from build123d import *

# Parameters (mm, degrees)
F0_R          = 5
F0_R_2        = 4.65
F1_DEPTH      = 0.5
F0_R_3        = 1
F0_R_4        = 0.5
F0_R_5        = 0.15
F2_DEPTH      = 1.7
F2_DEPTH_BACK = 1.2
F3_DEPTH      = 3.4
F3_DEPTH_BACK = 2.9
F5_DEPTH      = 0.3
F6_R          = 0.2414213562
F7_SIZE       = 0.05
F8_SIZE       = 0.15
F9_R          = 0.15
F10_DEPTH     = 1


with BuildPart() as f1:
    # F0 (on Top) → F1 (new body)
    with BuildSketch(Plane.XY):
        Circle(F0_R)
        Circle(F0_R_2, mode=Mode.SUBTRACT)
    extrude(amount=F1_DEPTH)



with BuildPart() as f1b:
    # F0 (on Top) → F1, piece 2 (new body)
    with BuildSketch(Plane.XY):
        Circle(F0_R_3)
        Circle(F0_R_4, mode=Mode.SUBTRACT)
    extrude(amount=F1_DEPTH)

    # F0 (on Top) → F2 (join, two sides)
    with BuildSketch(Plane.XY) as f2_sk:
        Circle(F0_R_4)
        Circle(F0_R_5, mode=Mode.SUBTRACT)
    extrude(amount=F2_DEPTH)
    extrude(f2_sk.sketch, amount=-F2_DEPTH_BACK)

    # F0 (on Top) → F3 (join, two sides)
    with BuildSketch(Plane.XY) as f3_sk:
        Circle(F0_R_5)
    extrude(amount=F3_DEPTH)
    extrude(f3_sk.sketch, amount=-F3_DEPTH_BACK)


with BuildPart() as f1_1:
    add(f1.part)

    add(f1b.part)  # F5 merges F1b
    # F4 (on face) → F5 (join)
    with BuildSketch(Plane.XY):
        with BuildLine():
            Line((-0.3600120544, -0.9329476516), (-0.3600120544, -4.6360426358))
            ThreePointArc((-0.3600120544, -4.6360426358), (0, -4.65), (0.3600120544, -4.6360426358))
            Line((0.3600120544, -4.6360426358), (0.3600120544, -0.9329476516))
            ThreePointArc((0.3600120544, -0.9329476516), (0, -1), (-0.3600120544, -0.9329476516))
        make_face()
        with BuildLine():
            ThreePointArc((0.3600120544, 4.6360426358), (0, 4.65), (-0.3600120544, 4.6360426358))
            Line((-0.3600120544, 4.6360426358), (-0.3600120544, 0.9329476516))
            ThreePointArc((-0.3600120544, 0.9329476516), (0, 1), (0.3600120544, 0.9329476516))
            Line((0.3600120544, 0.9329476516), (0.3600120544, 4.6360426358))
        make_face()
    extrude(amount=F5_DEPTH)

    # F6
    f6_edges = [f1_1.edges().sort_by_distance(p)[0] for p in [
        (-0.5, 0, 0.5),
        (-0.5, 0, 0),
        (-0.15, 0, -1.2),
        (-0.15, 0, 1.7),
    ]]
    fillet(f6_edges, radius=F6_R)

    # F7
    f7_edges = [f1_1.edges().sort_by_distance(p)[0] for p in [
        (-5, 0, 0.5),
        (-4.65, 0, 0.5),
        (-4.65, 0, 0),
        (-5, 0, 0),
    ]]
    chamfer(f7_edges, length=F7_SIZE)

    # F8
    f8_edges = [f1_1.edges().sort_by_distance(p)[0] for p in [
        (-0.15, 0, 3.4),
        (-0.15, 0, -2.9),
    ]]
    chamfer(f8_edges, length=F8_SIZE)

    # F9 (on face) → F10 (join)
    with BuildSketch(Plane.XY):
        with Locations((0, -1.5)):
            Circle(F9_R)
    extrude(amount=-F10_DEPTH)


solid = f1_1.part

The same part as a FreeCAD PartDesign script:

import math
import FreeCAD as App
import Part
import Sketcher


def edges_at(feature, points):
    """Names of the edges that pass closest to the given points."""
    edges = feature.Shape.Edges
    near = lambda p: min(range(len(edges)), key=lambda i: edges[i].distToShape(Part.Vertex(*p))[0])
    return sorted({f"Edge{near(p) + 1}" for p in points})

doc = App.newDocument("Part")
body = doc.addObject("PartDesign::Body", "Body")

sketch1 = doc.addObject("Sketcher::SketchObject", "Sketch")
body.addObject(sketch1)
sketch1.AttachmentSupport = (doc.XY_Plane, [""])
sketch1.MapMode = "FlatFace"
sketch1.addGeometry([
    Part.Circle(App.Vector(0, 0, 0), App.Vector(0, 0, 1), 5),
    Part.Circle(App.Vector(0, 0, 0), App.Vector(0, 0, 1), 4.7),
], False)
sketch1.addConstraint([
    Sketcher.Constraint("Coincident", 0, 3, -1, 1),
    Sketcher.Constraint("Coincident", 1, 3, -1, 1),
    Sketcher.Constraint("Diameter", 0, 10.0),
    Sketcher.Constraint("Diameter", 1, 9.3),
])
pad1 = doc.addObject("PartDesign::Pad", "Pad")
body.addObject(pad1)
pad1.Profile = sketch1
pad1.Length = 0.5
body2 = doc.addObject("PartDesign::Body", "Body001")

sketch2 = doc.addObject("Sketcher::SketchObject", "Sketch001")
body2.addObject(sketch2)
sketch2.AttachmentSupport = (doc.getObject("XY_Plane001"), [""])
sketch2.MapMode = "FlatFace"
sketch2.addGeometry([
    Part.Circle(App.Vector(0, 0, 0), App.Vector(0, 0, 1), 1),
    Part.Circle(App.Vector(0, 0, 0), App.Vector(0, 0, 1), 0.5),
], False)
sketch2.addConstraint([
    Sketcher.Constraint("Coincident", 0, 3, -1, 1),
    Sketcher.Constraint("Coincident", 1, 3, -1, 1),
    Sketcher.Constraint("Diameter", 0, 2.0),
    Sketcher.Constraint("Diameter", 1, 1.0),
])
pad2 = doc.addObject("PartDesign::Pad", "Pad001")
body2.addObject(pad2)
pad2.Profile = sketch2
pad2.Length = 0.5

sketch3 = doc.addObject("Sketcher::SketchObject", "Sketch002")
body2.addObject(sketch3)
sketch3.AttachmentSupport = (doc.getObject("XY_Plane001"), [""])
sketch3.MapMode = "FlatFace"
sketch3.addGeometry([
    Part.Circle(App.Vector(0, 0, 0), App.Vector(0, 0, 1), 0.5),
    Part.Circle(App.Vector(0, 0, 0), App.Vector(0, 0, 1), 0.15),
], False)
sketch3.addConstraint([
    Sketcher.Constraint("Coincident", 0, 3, -1, 1),
    Sketcher.Constraint("Coincident", 1, 3, -1, 1),
    Sketcher.Constraint("Diameter", 0, 1.0),
    Sketcher.Constraint("Diameter", 1, 0.3),
])
pad3 = doc.addObject("PartDesign::Pad", "Pad002")
body2.addObject(pad3)
pad3.Profile = sketch3
pad3.Type = "TwoLengths"
pad3.Length = 1.7
pad3.Length2 = 1.2

sketch4 = doc.addObject("Sketcher::SketchObject", "Sketch003")
body2.addObject(sketch4)
sketch4.AttachmentSupport = (doc.getObject("XY_Plane001"), [""])
sketch4.MapMode = "FlatFace"
sketch4.addGeometry(Part.Circle(App.Vector(0, 0, 0), App.Vector(0, 0, 1), 0.15), False)
sketch4.addConstraint([
    Sketcher.Constraint("Coincident", 0, 3, -1, 1),
    Sketcher.Constraint("Diameter", 0, 0.3),
])
pad4 = doc.addObject("PartDesign::Pad", "Pad003")
body2.addObject(pad4)
pad4.Profile = sketch4
pad4.Type = "TwoLengths"
pad4.Length = 3.4
pad4.Length2 = 2.9
body.AllowCompound = True
doc.recompute()

boolean = doc.addObject("PartDesign::Boolean", "Boolean")
body.addObject(boolean)
boolean.Type = "Fuse"
boolean.addObjects([body2])

sketch5 = doc.addObject("Sketcher::SketchObject", "Sketch004")
body.addObject(sketch5)
sketch5.AttachmentSupport = (doc.XY_Plane, [""])
sketch5.MapMode = "FlatFace"
sketch5.addGeometry([
    Part.LineSegment(App.Vector(-0.4, -0.9, 0), App.Vector(-0.4, -4.6, 0)),
    Part.ArcOfCircle(Part.Circle(App.Vector(0, 0, 0), App.Vector(0, 0, 1), 4.7), math.radians(-94.44), math.radians(-85.56)),
    Part.LineSegment(App.Vector(0.4, -4.6, 0), App.Vector(0.4, -0.9, 0)),
    Part.ArcOfCircle(Part.Circle(App.Vector(0, 0, 0), App.Vector(0, 0, 1), 1), math.radians(-111), math.radians(-69)),
    Part.ArcOfCircle(Part.Circle(App.Vector(0, 0, 0), App.Vector(0, 0, 1), 4.7), math.radians(85.56), math.radians(94.44)),
    Part.LineSegment(App.Vector(-0.4, 4.6, 0), App.Vector(-0.4, 0.9, 0)),
    Part.ArcOfCircle(Part.Circle(App.Vector(0, 0, 0), App.Vector(0, 0, 1), 1), math.radians(69), math.radians(111)),
    Part.LineSegment(App.Vector(0.4, 0.9, 0), App.Vector(0.4, 4.6, 0)),
], False)
sketch5.addConstraint([
    Sketcher.Constraint("Coincident", 0, 2, 1, 1),
    Sketcher.Constraint("Coincident", 1, 2, 2, 1),
    Sketcher.Constraint("Coincident", 2, 2, 3, 2),
    Sketcher.Constraint("Coincident", 3, 1, 0, 1),
    Sketcher.Constraint("Coincident", 4, 2, 5, 1),
    Sketcher.Constraint("Coincident", 5, 2, 6, 2),
    Sketcher.Constraint("Coincident", 6, 1, 7, 1),
    Sketcher.Constraint("Coincident", 7, 2, 4, 1),
    Sketcher.Constraint("Vertical", 0),
    Sketcher.Constraint("Vertical", 2),
    Sketcher.Constraint("Vertical", 5),
    Sketcher.Constraint("Vertical", 7),
    Sketcher.Constraint("Coincident", 1, 3, -1, 1),
    Sketcher.Constraint("Coincident", 3, 3, -1, 1),
    Sketcher.Constraint("Coincident", 4, 3, -1, 1),
    Sketcher.Constraint("Coincident", 6, 3, -1, 1),
    Sketcher.Constraint("Equal", 1, 4),
    Sketcher.Constraint("Equal", 3, 6),
    Sketcher.Constraint("Horizontal", 0, 2, 1, 2),
    Sketcher.Constraint("Horizontal", 5, 2, 6, 1),
    Sketcher.Constraint("Vertical", 3, 1, 4, 2),
    Sketcher.Constraint("Radius", 3, 1.0),
    Sketcher.Constraint("Radius", 1, 4.65),
    Sketcher.Constraint("DistanceY", 0, 2, 0, 1, 3.703095),
])
pad5 = doc.addObject("PartDesign::Pad", "Pad004")
body.addObject(pad5)
pad5.Profile = sketch5
pad5.Length = 0.3
doc.recompute()

fillet = doc.addObject("PartDesign::Fillet", "Fillet")
body.addObject(fillet)
fillet.Base = (pad5, edges_at(pad5, [
    (-0.5, 0, 0.5),
    (-0.5, 0, 0),
    (-0.15, 0, -1.2),
    (-0.15, 0, 1.7),
]))
fillet.Radius = 0.241421
doc.recompute()

chamfer = doc.addObject("PartDesign::Chamfer", "Chamfer")
body.addObject(chamfer)
chamfer.Base = (fillet, edges_at(fillet, [
    (-5, 0, 0.5),
    (-4.65, 0, 0.5),
    (-4.65, 0, 0),
    (-5, 0, 0),
]))
chamfer.Size = 0.05
doc.recompute()

chamfer2 = doc.addObject("PartDesign::Chamfer", "Chamfer001")
body.addObject(chamfer2)
chamfer2.Base = (chamfer, edges_at(chamfer, [(-0.15, 0, 3.4), (-0.15, 0, -2.9)]))
chamfer2.Size = 0.15

sketch6 = doc.addObject("Sketcher::SketchObject", "Sketch005")
body.addObject(sketch6)
sketch6.AttachmentSupport = (doc.XY_Plane, [""])
sketch6.MapMode = "FlatFace"
sketch6.addGeometry(Part.Circle(App.Vector(0, -1.5, 0), App.Vector(0, 0, 1), 0.15), False)
sketch6.addConstraint([
    Sketcher.Constraint("PointOnObject", 0, 3, -2),
    Sketcher.Constraint("Diameter", 0, 0.3),
    Sketcher.Constraint("DistanceY", 0, 3, -1, 1, 1.5),
])
pad6 = doc.addObject("PartDesign::Pad", "Pad005")
body.addObject(pad6)
pad6.Profile = sketch6
pad6.Length = 1
pad6.Reversed = True

doc.recompute()
